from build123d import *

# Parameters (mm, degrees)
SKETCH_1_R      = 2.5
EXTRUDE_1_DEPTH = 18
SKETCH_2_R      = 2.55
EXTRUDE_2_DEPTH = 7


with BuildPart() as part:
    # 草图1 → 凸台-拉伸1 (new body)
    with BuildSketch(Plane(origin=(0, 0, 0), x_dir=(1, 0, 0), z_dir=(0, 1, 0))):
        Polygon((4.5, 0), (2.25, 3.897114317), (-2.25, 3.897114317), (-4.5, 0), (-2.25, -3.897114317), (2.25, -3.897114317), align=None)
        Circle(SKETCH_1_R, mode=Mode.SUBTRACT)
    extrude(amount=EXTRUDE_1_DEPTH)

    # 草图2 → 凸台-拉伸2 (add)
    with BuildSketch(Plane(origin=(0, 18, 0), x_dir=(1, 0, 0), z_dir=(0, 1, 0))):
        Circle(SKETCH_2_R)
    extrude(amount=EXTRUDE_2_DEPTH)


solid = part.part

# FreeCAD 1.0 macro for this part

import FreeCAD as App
import Part
import Sketcher

V = App.Vector
Q = App.Units.Quantity

doc = App.newDocument("Part")
params = doc.addObject("Spreadsheet::Sheet", "Params")
for row, (alias, value) in enumerate([
    ("sketch1_diameter", "5 mm"),
    ("sketch1_width", "4.5 mm"),
    ("sketch1_length", "4.5 mm"),
    ("pad1_length", "18 mm"),
    ("sketch2_diameter", "5.1 mm"),
    ("pad2_length", "7 mm"),
], start=1):
    params.set(f"A{row}", alias)
    params.set(f"B{row}", "=" + value)
    params.setAlias(f"B{row}", alias)

body = doc.addObject("PartDesign::Body", "Body")

sketch1 = doc.addObject("Sketcher::SketchObject", "Sketch")
body.addObject(sketch1)
sketch1.AttachmentSupport = (doc.XZ_Plane, [""])
sketch1.MapMode = "FlatFace"
sketch1.addGeometry([
    Part.LineSegment(V(4.5, 0, 0), V(2.25, -3.897114, 0)),
    Part.LineSegment(V(2.25, -3.897114, 0), V(-2.25, -3.897114, 0)),
    Part.LineSegment(V(-2.25, -3.897114, 0), V(-4.5, 0, 0)),
    Part.LineSegment(V(-4.5, 0, 0), V(-2.25, 3.897114, 0)),
    Part.LineSegment(V(-2.25, 3.897114, 0), V(2.25, 3.897114, 0)),
    Part.LineSegment(V(2.25, 3.897114, 0), V(4.5, 0, 0)),
    Part.Circle(V(0, 0, 0), V(0, 0, 1), 2.5),
], False)
sketch1.addConstraint([
    Sketcher.Constraint("Coincident", 0, 2, 1, 1),
    Sketcher.Constraint("Coincident", 1, 2, 2, 1),
    Sketcher.Constraint("Coincident", 2, 2, 3, 1),
    Sketcher.Constraint("Coincident", 3, 2, 4, 1),
    Sketcher.Constraint("Coincident", 4, 2, 5, 1),
    Sketcher.Constraint("Coincident", 5, 2, 0, 1),
    Sketcher.Constraint("Horizontal", 1),
    Sketcher.Constraint("Horizontal", 4),
    Sketcher.Constraint("Coincident", 6, 3, -1, 1),
    Sketcher.Constraint("Symmetric", 0, 2, 3, 2, -1, 1),
    Sketcher.Constraint("Symmetric", 2, 2, 5, 2, -1, 1),
    Sketcher.Constraint("PointOnObject", 2, 2, -1),
    Sketcher.Constraint("Parallel", 2, 5),
    Sketcher.Constraint("Vertical", 1, 2, 3, 2),
    Sketcher.Constraint("Diameter", 6, 5.0),
    Sketcher.Constraint("Angle", 0, Q("-120 deg")),
    Sketcher.Constraint("DistanceX", 1, 2, 1, 1, 4.5),
    Sketcher.Constraint("Distance", 0, 4.5),
])
sketch1.setExpression("Constraints[14]", "Params.sketch1_diameter")
sketch1.setExpression("Constraints[16]", "Params.sketch1_width")
sketch1.setExpression("Constraints[17]", "Params.sketch1_length")
pad1 = doc.addObject("PartDesign::Pad", "Pad")
body.addObject(pad1)
pad1.Profile = sketch1
pad1.setExpression("Length", "Params.pad1_length")
pad1.Reversed = True

sketch2 = doc.addObject("Sketcher::SketchObject", "Sketch001")
body.addObject(sketch2)
sketch2.AttachmentSupport = (doc.XZ_Plane, [""])
sketch2.MapMode = "FlatFace"
sketch2.AttachmentOffset = App.Placement(V(0, 0, -18), App.Rotation())
sketch2.addGeometry(Part.Circle(V(0, 0, 0), V(0, 0, 1), 2.55), False)
sketch2.addConstraint([
    Sketcher.Constraint("Coincident", 0, 3, -1, 1),
    Sketcher.Constraint("Diameter", 0, 5.1),
])
sketch2.setExpression("Constraints[1]", "Params.sketch2_diameter")
pad2 = doc.addObject("PartDesign::Pad", "Pad001")
body.addObject(pad2)
pad2.Profile = sketch2
pad2.setExpression("Length", "Params.pad2_length")
pad2.Reversed = True

doc.recompute()
